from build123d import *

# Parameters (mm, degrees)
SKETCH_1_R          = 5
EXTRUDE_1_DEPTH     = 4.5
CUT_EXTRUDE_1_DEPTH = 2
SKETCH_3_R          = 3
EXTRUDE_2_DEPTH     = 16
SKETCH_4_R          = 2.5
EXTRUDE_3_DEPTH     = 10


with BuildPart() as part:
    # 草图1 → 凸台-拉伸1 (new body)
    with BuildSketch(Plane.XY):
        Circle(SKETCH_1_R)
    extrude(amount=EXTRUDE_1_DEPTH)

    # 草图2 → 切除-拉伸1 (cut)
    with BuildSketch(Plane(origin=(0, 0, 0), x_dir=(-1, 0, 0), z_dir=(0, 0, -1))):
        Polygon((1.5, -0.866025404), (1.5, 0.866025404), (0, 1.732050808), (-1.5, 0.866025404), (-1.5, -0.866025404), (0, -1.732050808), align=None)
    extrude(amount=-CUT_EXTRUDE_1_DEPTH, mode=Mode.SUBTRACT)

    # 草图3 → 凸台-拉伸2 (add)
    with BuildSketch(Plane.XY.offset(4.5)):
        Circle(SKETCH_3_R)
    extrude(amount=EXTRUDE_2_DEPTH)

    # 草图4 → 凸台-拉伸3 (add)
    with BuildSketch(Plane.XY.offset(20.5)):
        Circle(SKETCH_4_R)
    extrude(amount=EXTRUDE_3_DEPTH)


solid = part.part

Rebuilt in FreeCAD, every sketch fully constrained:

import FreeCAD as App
import Part
import Sketcher

V = App.Vector
Q = App.Units.Quantity


def add_polygon(sketch, points):
    """Adds a closed chain of lines whose ends are joined by coincident constraints."""
    first, n = sketch.GeometryCount, len(points)
    for a, b in zip(points, points[1:] + points[:1]):
        sketch.addGeometry(Part.LineSegment(App.Vector(*a, 0), App.Vector(*b, 0)), False)
    for i in range(n):
        sketch.addConstraint(Sketcher.Constraint("Coincident", first + i, 2, first + (i + 1) % n, 1))

doc = App.newDocument("Part")
body = doc.addObject("PartDesign::Body", "Body")

# Sketch on XY plane
sketch1 = doc.addObject("Sketcher::SketchObject", "Sketch")
body.addObject(sketch1)
sketch1.AttachmentSupport = (doc.XY_Plane, [""])
sketch1.MapMode = "FlatFace"
sketch1.addGeometry(Part.Circle(V(0, 0, 0), V(0, 0, 1), 5), False)
sketch1.addConstraint(Sketcher.Constraint("Coincident", 0, 3, -1, 1))
sketch1.addConstraint(Sketcher.Constraint("Diameter", 0, 10.0))
pad1 = doc.addObject("PartDesign::Pad", "Pad")
body.addObject(pad1)
pad1.Profile = sketch1
pad1.Length = 4.5

# Sketch on XY plane
sketch2 = doc.addObject("Sketcher::SketchObject", "Sketch001")
body.addObject(sketch2)
sketch2.AttachmentSupport = (doc.XY_Plane, [""])
sketch2.MapMode = "FlatFace"
add_polygon(sketch2, [(-1.5, -0.9), (-1.5, 0.9), (0, 1.7), (1.5, 0.9), (1.5, -0.9), (0, -1.7)])  # lines 0-5
sketch2.addConstraint(Sketcher.Constraint("Vertical", 0))
sketch2.addConstraint(Sketcher.Constraint("Vertical", 3))
sketch2.addConstraint(Sketcher.Constraint("Symmetric", 0, 2, 3, 2, -1, 1))
sketch2.addConstraint(Sketcher.Constraint("Symmetric", 1, 2, 4, 2, -1, 1))
sketch2.addConstraint(Sketcher.Constraint("PointOnObject", 1, 2, -2))
sketch2.addConstraint(Sketcher.Constraint("Parallel", 2, 5))
sketch2.addConstraint(Sketcher.Constraint("Horizontal", 0, 2, 2, 2))
sketch2.addConstraint(Sketcher.Constraint("Angle", 1, Q("30 deg")))
sketch2.addConstraint(Sketcher.Constraint("DistanceX", 0, 2, 2, 2, 3.0))
sketch2.addConstraint(Sketcher.Constraint("DistanceY", 0, 1, 0, 2, 1.732051))
pocket1 = doc.addObject("PartDesign::Pocket", "Pocket")
body.addObject(pocket1)
pocket1.Profile = sketch2
pocket1.Length = 2
pocket1.Reversed = True

# Sketch on XY plane
sketch3 = doc.addObject("Sketcher::SketchObject", "Sketch002")
body.addObject(sketch3)
sketch3.AttachmentSupport = (doc.XY_Plane, [""])
sketch3.MapMode = "FlatFace"
sketch3.AttachmentOffset = App.Placement(V(0, 0, 4.5), App.Rotation())
sketch3.addGeometry(Part.Circle(V(0, 0, 0), V(0, 0, 1), 3), False)
sketch3.addConstraint(Sketcher.Constraint("Coincident", 0, 3, -1, 1))
sketch3.addConstraint(Sketcher.Constraint("Diameter", 0, 6.0))
pad2 = doc.addObject("PartDesign::Pad", "Pad001")
body.addObject(pad2)
pad2.Profile = sketch3
pad2.Length = 16

# Sketch on XY plane
sketch4 = doc.addObject("Sketcher::SketchObject", "Sketch003")
body.addObject(sketch4)
sketch4.AttachmentSupport = (doc.XY_Plane, [""])
sketch4.MapMode = "FlatFace"
sketch4.AttachmentOffset = App.Placement(V(0, 0, 20.5), App.Rotation())
sketch4.addGeometry(Part.Circle(V(0, 0, 0), V(0, 0, 1), 2.5), False)
sketch4.addConstraint(Sketcher.Constraint("Coincident", 0, 3, -1, 1))
sketch4.addConstraint(Sketcher.Constraint("Diameter", 0, 5.0))
pad3 = doc.addObject("PartDesign::Pad", "Pad002")
body.addObject(pad3)
pad3.Profile = sketch4
pad3.Length = 10

doc.recompute()
